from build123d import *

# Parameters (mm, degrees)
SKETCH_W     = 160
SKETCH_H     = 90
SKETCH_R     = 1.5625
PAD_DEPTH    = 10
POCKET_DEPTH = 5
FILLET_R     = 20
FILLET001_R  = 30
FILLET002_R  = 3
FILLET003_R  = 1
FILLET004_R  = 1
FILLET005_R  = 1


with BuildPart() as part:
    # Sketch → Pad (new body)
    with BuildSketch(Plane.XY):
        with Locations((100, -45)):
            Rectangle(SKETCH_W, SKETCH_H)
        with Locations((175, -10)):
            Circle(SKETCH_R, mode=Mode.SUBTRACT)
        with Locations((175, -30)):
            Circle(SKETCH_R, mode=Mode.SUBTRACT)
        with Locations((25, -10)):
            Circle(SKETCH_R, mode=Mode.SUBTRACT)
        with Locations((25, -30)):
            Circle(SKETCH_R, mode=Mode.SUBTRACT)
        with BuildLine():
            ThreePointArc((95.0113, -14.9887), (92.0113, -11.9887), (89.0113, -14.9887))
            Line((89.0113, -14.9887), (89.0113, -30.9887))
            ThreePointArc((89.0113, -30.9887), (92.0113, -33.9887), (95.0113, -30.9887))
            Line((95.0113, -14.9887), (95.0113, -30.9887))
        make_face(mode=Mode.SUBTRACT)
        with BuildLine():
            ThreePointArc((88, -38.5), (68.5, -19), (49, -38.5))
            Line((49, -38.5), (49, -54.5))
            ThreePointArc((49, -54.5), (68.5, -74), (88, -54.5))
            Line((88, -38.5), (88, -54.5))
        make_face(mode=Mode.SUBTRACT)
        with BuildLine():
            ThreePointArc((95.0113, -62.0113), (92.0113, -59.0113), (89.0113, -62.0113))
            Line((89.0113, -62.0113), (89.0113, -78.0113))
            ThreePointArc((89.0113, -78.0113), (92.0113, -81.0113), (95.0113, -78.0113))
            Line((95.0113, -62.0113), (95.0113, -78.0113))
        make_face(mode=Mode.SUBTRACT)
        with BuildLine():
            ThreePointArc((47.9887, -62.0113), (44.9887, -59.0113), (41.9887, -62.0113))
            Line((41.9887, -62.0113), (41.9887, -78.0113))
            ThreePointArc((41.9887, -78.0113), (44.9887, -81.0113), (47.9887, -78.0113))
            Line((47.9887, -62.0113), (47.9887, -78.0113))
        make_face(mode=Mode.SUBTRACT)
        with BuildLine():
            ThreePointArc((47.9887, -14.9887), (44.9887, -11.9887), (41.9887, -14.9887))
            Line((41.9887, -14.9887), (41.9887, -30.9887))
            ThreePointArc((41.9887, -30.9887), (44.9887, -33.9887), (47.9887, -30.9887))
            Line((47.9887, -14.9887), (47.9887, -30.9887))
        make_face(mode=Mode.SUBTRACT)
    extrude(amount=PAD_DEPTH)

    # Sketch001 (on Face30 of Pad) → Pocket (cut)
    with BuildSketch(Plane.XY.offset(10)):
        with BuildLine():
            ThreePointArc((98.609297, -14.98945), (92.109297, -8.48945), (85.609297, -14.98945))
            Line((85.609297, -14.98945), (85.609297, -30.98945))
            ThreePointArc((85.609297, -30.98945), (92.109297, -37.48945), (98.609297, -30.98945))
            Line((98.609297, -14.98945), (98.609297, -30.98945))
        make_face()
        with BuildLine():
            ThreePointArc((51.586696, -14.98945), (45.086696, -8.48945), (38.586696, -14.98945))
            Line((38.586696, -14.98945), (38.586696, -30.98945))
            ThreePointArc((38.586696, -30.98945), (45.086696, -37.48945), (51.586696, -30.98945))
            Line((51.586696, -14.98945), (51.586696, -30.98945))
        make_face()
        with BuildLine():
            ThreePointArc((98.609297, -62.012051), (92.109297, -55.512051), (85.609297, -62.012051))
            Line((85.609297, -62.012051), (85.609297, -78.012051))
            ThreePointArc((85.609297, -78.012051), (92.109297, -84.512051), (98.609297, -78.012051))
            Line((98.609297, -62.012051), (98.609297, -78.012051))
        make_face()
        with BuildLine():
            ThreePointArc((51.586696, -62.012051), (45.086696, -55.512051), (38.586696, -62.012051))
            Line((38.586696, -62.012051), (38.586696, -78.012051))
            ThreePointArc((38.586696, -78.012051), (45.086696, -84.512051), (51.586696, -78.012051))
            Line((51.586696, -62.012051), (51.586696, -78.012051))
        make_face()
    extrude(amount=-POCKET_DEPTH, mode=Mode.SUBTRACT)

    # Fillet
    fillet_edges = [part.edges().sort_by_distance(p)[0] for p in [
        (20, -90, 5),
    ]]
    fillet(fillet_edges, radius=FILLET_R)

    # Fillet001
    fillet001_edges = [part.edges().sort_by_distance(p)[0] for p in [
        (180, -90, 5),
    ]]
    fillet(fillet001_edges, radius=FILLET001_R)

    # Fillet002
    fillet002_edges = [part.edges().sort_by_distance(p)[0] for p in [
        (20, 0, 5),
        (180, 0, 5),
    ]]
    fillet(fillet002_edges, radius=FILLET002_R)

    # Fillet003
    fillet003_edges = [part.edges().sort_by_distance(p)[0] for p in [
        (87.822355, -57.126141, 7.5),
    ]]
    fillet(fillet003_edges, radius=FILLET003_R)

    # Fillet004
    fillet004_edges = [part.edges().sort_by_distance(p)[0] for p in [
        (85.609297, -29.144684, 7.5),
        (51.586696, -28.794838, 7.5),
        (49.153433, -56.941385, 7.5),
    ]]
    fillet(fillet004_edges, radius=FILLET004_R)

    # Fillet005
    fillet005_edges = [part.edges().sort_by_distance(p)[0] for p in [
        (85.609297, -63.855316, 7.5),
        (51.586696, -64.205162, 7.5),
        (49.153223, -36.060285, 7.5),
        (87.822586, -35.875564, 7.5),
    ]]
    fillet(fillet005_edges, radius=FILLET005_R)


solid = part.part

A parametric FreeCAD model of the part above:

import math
import FreeCAD as App
import Part
import Sketcher
from FreeCAD import Vector


def edges_at(feature, points):
    """Names of the edges that pass closest to the given points."""
    edges = feature.Shape.Edges
    near = lambda p: min(range(len(edges)), key=lambda i: edges[i].distToShape(Part.Vertex(*p))[0])
    return sorted({f"Edge{near(p) + 1}" for p in points})


def add_polygon(sketch, points):
    """Adds a closed chain of lines whose ends are joined by coincident constraints."""
    first, n = sketch.GeometryCount, len(points)
    for a, b in zip(points, points[1:] + points[:1]):
        sketch.addGeometry(Part.LineSegment(App.Vector(*a, 0), App.Vector(*b, 0)), False)
    for i in range(n):
        sketch.addConstraint(Sketcher.Constraint("Coincident", first + i, 2, first + (i + 1) % n, 1))

doc = App.newDocument("Part")
params = doc.addObject("Spreadsheet::Sheet", "Params")
for row, (alias, value) in enumerate([
    ("sketch1_radius", "3 mm"),
    ("sketch1_radius2", "19.5 mm"),
    ("sketch1_width", "160 mm"),
    ("sketch1_height", "90 mm"),
    ("sketch1_height2", "16 mm"),
    ("pad1_length", "10 mm"),
    ("sketch2_radius", "6.5 mm"),
    ("sketch2_height", "16 mm"),
    ("pocket1_length", "5 mm"),
    ("fillet_radius", "20 mm"),
    ("fillet2_radius", "30 mm"),
    ("fillet3_radius", "3 mm"),
    ("fillet4_radius", "1 mm"),
    ("fillet5_radius", "1 mm"),
    ("fillet6_radius", "1 mm"),
], start=1):
    params.set(f"A{row}", alias)
    params.set(f"B{row}", "=" + value)
    params.setAlias(f"B{row}", alias)

body = doc.addObject("PartDesign::Body", "Body")

sketch1 = body.newObject("Sketcher::SketchObject", "Sketch")
sketch1.AttachmentSupport = (doc.getObject("XY_Plane"), [""])
sketch1.MapMode = "FlatFace"
add_polygon(sketch1, [(20, 0), (20, -90), (180, -90), (180, 0)])
sketch1.addGeometry(Part.ArcOfCircle(Part.Circle(Vector(45, -62, 0), Vector(0, 0, 1), 3), math.radians(0), math.radians(180)), False)
sketch1.addGeometry(Part.LineSegment(Vector(48, -62, 0), Vector(48, -78, 0)), False)
sketch1.addGeometry(Part.ArcOfCircle(Part.Circle(Vector(45, -78, 0), Vector(0, 0, 1), 3), math.radians(180), math.radians(360)), False)
sketch1.addGeometry(Part.LineSegment(Vector(42, -78, 0), Vector(42, -62, 0)), False)
sketch1.addGeometry(Part.ArcOfCircle(Part.Circle(Vector(92, -62, 0), Vector(0, 0, 1), 3), math.radians(0), math.radians(180)), False)
sketch1.addGeometry(Part.LineSegment(Vector(95, -62, 0), Vector(95, -78, 0)), False)
sketch1.addGeometry(Part.ArcOfCircle(Part.Circle(Vector(92, -78, 0), Vector(0, 0, 1), 3), math.radians(180), math.radians(360)), False)
sketch1.addGeometry(Part.LineSegment(Vector(89, -78, 0), Vector(89, -62, 0)), False)
sketch1.addGeometry(Part.ArcOfCircle(Part.Circle(Vector(68.5, -38.5, 0), Vector(0, 0, 1), 19.5), math.radians(0), math.radians(180)), False)
sketch1.addGeometry(Part.LineSegment(Vector(88, -38.5, 0), Vector(88, -54.5, 0)), False)
sketch1.addGeometry(Part.ArcOfCircle(Part.Circle(Vector(68.5, -54.5, 0), Vector(0, 0, 1), 19.5), math.radians(180), math.radians(360)), False)
sketch1.addGeometry(Part.LineSegment(Vector(49, -54.5, 0), Vector(49, -38.5, 0)), False)
sketch1.addGeometry(Part.Circle(Vector(25, -30, 0), Vector(0, 0, 1), 1.6), False)
sketch1.addGeometry(Part.ArcOfCircle(Part.Circle(Vector(45, -15, 0), Vector(0, 0, 1), 3), math.radians(0), math.radians(180)), False)
sketch1.addGeometry(Part.LineSegment(Vector(48, -15, 0), Vector(48, -31, 0)), False)
sketch1.addGeometry(Part.ArcOfCircle(Part.Circle(Vector(45, -31, 0), Vector(0, 0, 1), 3), math.radians(180), math.radians(360)), False)
sketch1.addGeometry(Part.LineSegment(Vector(42, -31, 0), Vector(42, -15, 0)), False)
sketch1.addGeometry(Part.Circle(Vector(25, -10, 0), Vector(0, 0, 1), 1.6), False)
sketch1.addGeometry(Part.ArcOfCircle(Part.Circle(Vector(92, -15, 0), Vector(0, 0, 1), 3), math.radians(0), math.radians(180)), False)
sketch1.addGeometry(Part.LineSegment(Vector(95, -15, 0), Vector(95, -31, 0)), False)
sketch1.addGeometry(Part.ArcOfCircle(Part.Circle(Vector(92, -31, 0), Vector(0, 0, 1), 3), math.radians(180), math.radians(360)), False)
sketch1.addGeometry(Part.LineSegment(Vector(89, -31, 0), Vector(89, -15, 0)), False)
sketch1.addGeometry(Part.Circle(Vector(175, -30, 0), Vector(0, 0, 1), 1.6), False)
sketch1.addGeometry(Part.Circle(Vector(175, -10, 0), Vector(0, 0, 1), 1.6), False)
sketch1.addConstraint(Sketcher.Constraint("Tangent", 4, 1, 5, 1))
sketch1.addConstraint(Sketcher.Constraint("Tangent", 5, 2, 6, 2))
sketch1.addConstraint(Sketcher.Constraint("Tangent", 6, 1, 7, 1))
sketch1.addConstraint(Sketcher.Constraint("Tangent", 7, 2, 4, 2))
sketch1.addConstraint(Sketcher.Constraint("Tangent", 8, 1, 9, 1))
sketch1.addConstraint(Sketcher.Constraint("Tangent", 9, 2, 10, 2))
sketch1.addConstraint(Sketcher.Constraint("Tangent", 10, 1, 11, 1))
sketch1.addConstraint(Sketcher.Constraint("Tangent", 11, 2, 8, 2))
sketch1.addConstraint(Sketcher.Constraint("Tangent", 12, 1, 13, 1))
sketch1.addConstraint(Sketcher.Constraint("Tangent", 13, 2, 14, 2))
sketch1.addConstraint(Sketcher.Constraint("Tangent", 14, 1, 15, 1))
sketch1.addConstraint(Sketcher.Constraint("Tangent", 15, 2, 12, 2))
sketch1.addConstraint(Sketcher.Constraint("Tangent", 17, 1, 18, 1))
sketch1.addConstraint(Sketcher.Constraint("Tangent", 18, 2, 19, 2))
sketch1.addConstraint(Sketcher.Constraint("Tangent", 19, 1, 20, 1))
sketch1.addConstraint(Sketcher.Constraint("Tangent", 20, 2, 17, 2))
sketch1.addConstraint(Sketcher.Constraint("Tangent", 22, 1, 23, 1))
sketch1.addConstraint(Sketcher.Constraint("Tangent", 23, 2, 24, 2))
sketch1.addConstraint(Sketcher.Constraint("Tangent", 24, 1, 25, 1))
sketch1.addConstraint(Sketcher.Constraint("Tangent", 25, 2, 22, 2))
sketch1.addConstraint(Sketcher.Constraint("Vertical", 0))
sketch1.addConstraint(Sketcher.Constraint("Horizontal", 1))
sketch1.addConstraint(Sketcher.Constraint("Vertical", 2))
sketch1.addConstraint(Sketcher.Constraint("Horizontal", 3))
sketch1.addConstraint(Sketcher.Constraint("Vertical", 5))
sketch1.addConstraint(Sketcher.Constraint("Vertical", 7))
sketch1.addConstraint(Sketcher.Constraint("Vertical", 9))
sketch1.addConstraint(Sketcher.Constraint("Vertical", 11))
sketch1.addConstraint(Sketcher.Constraint("Vertical", 13))
sketch1.addConstraint(Sketcher.Constraint("Vertical", 15))
sketch1.addConstraint(Sketcher.Constraint("Vertical", 18))
sketch1.addConstraint(Sketcher.Constraint("Vertical", 20))
sketch1.addConstraint(Sketcher.Constraint("Vertical", 23))
sketch1.addConstraint(Sketcher.Constraint("Vertical", 25))
sketch1.addConstraint(Sketcher.Constraint("Equal", 6, 8))
sketch1.addConstraint(Sketcher.Constraint("Equal", 10, 17))
sketch1.addConstraint(Sketcher.Constraint("Equal", 16, 21))
sketch1.addConstraint(Sketcher.Constraint("Equal", 19, 22))
sketch1.addConstraint(Sketcher.Constraint("Equal", 21, 26))
sketch1.addConstraint(Sketcher.Constraint("Equal", 26, 27))
sketch1.addConstraint(Sketcher.Constraint("PointOnObject", 2, 2, -1))
sketch1.addConstraint(Sketcher.Constraint("Horizontal", 4, 3, 8, 3))
sketch1.addConstraint(Sketcher.Constraint("Horizontal", 6, 3, 10, 3))
sketch1.addConstraint(Sketcher.Constraint("Horizontal", 17, 3, 22, 3))
sketch1.addConstraint(Sketcher.Constraint("Horizontal", 19, 3, 24, 3))
sketch1.addConstraint(Sketcher.Constraint("Horizontal", 16, 3, 26, 3))
sketch1.addConstraint(Sketcher.Constraint("Horizontal", 21, 3, 27, 3))
sketch1.addConstraint(Sketcher.Constraint("Vertical", 6, 3, 17, 3))
sketch1.addConstraint(Sketcher.Constraint("Vertical", 16, 3, 21, 3))
sketch1.addConstraint(Sketcher.Constraint("Vertical", 10, 3, 22, 3))
sketch1.addConstraint(Sketcher.Constraint("Vertical", 26, 3, 27, 3))
sketch1.addConstraint(Sketcher.Constraint("Equal", 11, 13))
sketch1.addConstraint(Sketcher.Constraint("Equal", 15, 18))
sketch1.addConstraint(Sketcher.Constraint("Radius", 4, 3.0))
sketch1.addConstraint(Sketcher.Constraint("Radius", 12, 19.5))
sketch1.addConstraint(Sketcher.Constraint("DistanceX", 1, 1, 1, 2, 160.0))
sketch1.addConstraint(Sketcher.Constraint("DistanceY", 0, 2, 0, 1, 90.0))
sketch1.addConstraint(Sketcher.Constraint("DistanceY", 5, 2, 5, 1, 16.0))
sketch1.addConstraint(Sketcher.Constraint("Diameter", 16, 3.125))
sketch1.addConstraint(Sketcher.Constraint("DistanceX", -1, 1, 16, 3, 25.0))
sketch1.addConstraint(Sketcher.Constraint("DistanceY", 16, 3, -1, 1, 30.0))
sketch1.addConstraint(Sketcher.Constraint("DistanceY", 21, 3, -1, 1, 10.0))
sketch1.addConstraint(Sketcher.Constraint("DistanceX", -1, 1, 26, 3, 175.0))
sketch1.addConstraint(Sketcher.Constraint("DistanceX", -1, 1, 0, 2, 20.0))
sketch1.addConstraint(Sketcher.Constraint("DistanceX", -1, 1, 12, 1, 88.0))
sketch1.addConstraint(Sketcher.Constraint("DistanceY", 12, 3, -1, 1, 38.5))
sketch1.addConstraint(Sketcher.Constraint("DistanceX", -1, 1, 4, 3, 44.9887))
sketch1.addConstraint(Sketcher.Constraint("DistanceY", 4, 3, -1, 1, 62.0113))
sketch1.addConstraint(Sketcher.Constraint("DistanceX", -1, 1, 8, 3, 92.0113))
sketch1.addConstraint(Sketcher.Constraint("DistanceY", 17, 3, -1, 1, 14.9887))
sketch1.setExpression("Constraints[57]", "Params.sketch1_radius")
sketch1.setExpression("Constraints[58]", "Params.sketch1_radius2")
sketch1.setExpression("Constraints[59]", "Params.sketch1_width")
sketch1.setExpression("Constraints[60]", "Params.sketch1_height")
sketch1.setExpression("Constraints[61]", "Params.sketch1_height2")
pad1 = body.newObject("PartDesign::Pad", "Pad")
pad1.Profile = sketch1
pad1.setExpression("Length", "Params.pad1_length")

sketch2 = body.newObject("Sketcher::SketchObject", "Sketch001")
sketch2.AttachmentSupport = (doc.getObject("XY_Plane"), [""])
sketch2.MapMode = "FlatFace"
sketch2.AttachmentOffset = App.Placement(Vector(0, 0, 10), App.Rotation())
sketch2.addGeometry(Part.ArcOfCircle(Part.Circle(Vector(92, -15, 0), Vector(0, 0, 1), 6), math.radians(0), math.radians(180)), False)
sketch2.addGeometry(Part.LineSegment(Vector(86, -15, 0), Vector(86, -31, 0)), False)
sketch2.addGeometry(Part.ArcOfCircle(Part.Circle(Vector(92, -31, 0), Vector(0, 0, 1), 6), math.radians(180), math.radians(360)), False)
sketch2.addGeometry(Part.LineSegment(Vector(99, -31, 0), Vector(99, -15, 0)), False)
sketch2.addGeometry(Part.ArcOfCircle(Part.Circle(Vector(45, -15, 0), Vector(0, 0, 1), 6), math.radians(0), math.radians(180)), False)
sketch2.addGeometry(Part.LineSegment(Vector(39, -15, 0), Vector(39, -31, 0)), False)
sketch2.addGeometry(Part.ArcOfCircle(Part.Circle(Vector(45, -31, 0), Vector(0, 0, 1), 6), math.radians(180), math.radians(360)), False)
sketch2.addGeometry(Part.LineSegment(Vector(52, -31, 0), Vector(52, -15, 0)), False)
sketch2.addGeometry(Part.ArcOfCircle(Part.Circle(Vector(92, -62, 0), Vector(0, 0, 1), 6), math.radians(0), math.radians(180)), False)
sketch2.addGeometry(Part.LineSegment(Vector(86, -62, 0), Vector(86, -78, 0)), False)
sketch2.addGeometry(Part.ArcOfCircle(Part.Circle(Vector(92, -78, 0), Vector(0, 0, 1), 6), math.radians(180), math.radians(360)), False)
sketch2.addGeometry(Part.LineSegment(Vector(99, -78, 0), Vector(99, -62, 0)), False)
sketch2.addGeometry(Part.ArcOfCircle(Part.Circle(Vector(45, -62, 0), Vector(0, 0, 1), 6), math.radians(0), math.radians(180)), False)
sketch2.addGeometry(Part.LineSegment(Vector(39, -62, 0), Vector(39, -78, 0)), False)
sketch2.addGeometry(Part.ArcOfCircle(Part.Circle(Vector(45, -78, 0), Vector(0, 0, 1), 6), math.radians(180), math.radians(360)), False)
sketch2.addGeometry(Part.LineSegment(Vector(52, -78, 0), Vector(52, -62, 0)), False)
sketch2.addConstraint(Sketcher.Constraint("Tangent", 0, 2, 1, 1))
sketch2.addConstraint(Sketcher.Constraint("Tangent", 1, 2, 2, 1))
sketch2.addConstraint(Sketcher.Constraint("Tangent", 2, 2, 3, 1))
sketch2.addConstraint(Sketcher.Constraint("Tangent", 3, 2, 0, 1))
sketch2.addConstraint(Sketcher.Constraint("Tangent", 4, 2, 5, 1))
sketch2.addConstraint(Sketcher.Constraint("Tangent", 5, 2, 6, 1))
sketch2.addConstraint(Sketcher.Constraint("Tangent", 6, 2, 7, 1))
sketch2.addConstraint(Sketcher.Constraint("Tangent", 7, 2, 4, 1))
sketch2.addConstraint(Sketcher.Constraint("Tangent", 8, 2, 9, 1))
sketch2.addConstraint(Sketcher.Constraint("Tangent", 9, 2, 10, 1))
sketch2.addConstraint(Sketcher.Constraint("Tangent", 10, 2, 11, 1))
sketch2.addConstraint(Sketcher.Constraint("Tangent", 11, 2, 8, 1))
sketch2.addConstraint(Sketcher.Constraint("Tangent", 12, 2, 13, 1))
sketch2.addConstraint(Sketcher.Constraint("Tangent", 13, 2, 14, 1))
sketch2.addConstraint(Sketcher.Constraint("Tangent", 14, 2, 15, 1))
sketch2.addConstraint(Sketcher.Constraint("Tangent", 15, 2, 12, 1))
sketch2.addConstraint(Sketcher.Constraint("Vertical", 1))
sketch2.addConstraint(Sketcher.Constraint("Vertical", 3))
sketch2.addConstraint(Sketcher.Constraint("Vertical", 5))
sketch2.addConstraint(Sketcher.Constraint("Vertical", 7))
sketch2.addConstraint(Sketcher.Constraint("Vertical", 9))
sketch2.addConstraint(Sketcher.Constraint("Vertical", 11))
sketch2.addConstraint(Sketcher.Constraint("Vertical", 13))
sketch2.addConstraint(Sketcher.Constraint("Vertical", 15))
sketch2.addConstraint(Sketcher.Constraint("Equal", 2, 4))
sketch2.addConstraint(Sketcher.Constraint("Equal", 6, 8))
sketch2.addConstraint(Sketcher.Constraint("Equal", 10, 12))
sketch2.addConstraint(Sketcher.Constraint("Horizontal", 0, 3, 4, 3))
sketch2.addConstraint(Sketcher.Constraint("Horizontal", 2, 3, 6, 3))
sketch2.addConstraint(Sketcher.Constraint("Horizontal", 8, 3, 12, 3))
sketch2.addConstraint(Sketcher.Constraint("Horizontal", 10, 3, 14, 3))
sketch2.addConstraint(Sketcher.Constraint("Vertical", 2, 3, 8, 3))
sketch2.addConstraint(Sketcher.Constraint("Vertical", 6, 3, 12, 3))
sketch2.addConstraint(Sketcher.Constraint("Equal", 7, 9))
sketch2.addConstraint(Sketcher.Constraint("Radius", 0, 6.5))
sketch2.addConstraint(Sketcher.Constraint("DistanceY", 1, 2, 1, 1, 16.0))
sketch2.addConstraint(Sketcher.Constraint("DistanceX", 4, 3, 0, 3, 47.022601))
sketch2.addConstraint(Sketcher.Constraint("DistanceY", 8, 3, 2, 3, 31.022601))
sketch2.addConstraint(Sketcher.Constraint("DistanceY", 0, 3, -1, 1, 14.98945))
sketch2.addConstraint(Sketcher.Constraint("DistanceX", -1, 1, 0, 3, 92.109297))
sketch2.setExpression("Constraints[34]", "Params.sketch2_radius")
sketch2.setExpression("Constraints[35]", "Params.sketch2_height")
pocket1 = body.newObject("PartDesign::Pocket", "Pocket")
pocket1.Profile = sketch2
pocket1.setExpression("Length", "Params.pocket1_length")
doc.recompute()

fillet = body.newObject("PartDesign::Fillet", "Fillet")
fillet.Base = (pocket1, edges_at(pocket1, [(20, -90, 5)]))
fillet.setExpression("Radius", "Params.fillet_radius")
doc.recompute()

fillet2 = body.newObject("PartDesign::Fillet", "Fillet001")
fillet2.Base = (fillet, edges_at(fillet, [(180, -90, 5)]))
fillet2.setExpression("Radius", "Params.fillet2_radius")
doc.recompute()

fillet3 = body.newObject("PartDesign::Fillet", "Fillet002")
fillet3.Base = (fillet2, edges_at(fillet2, [(20, 0, 5), (180, 0, 5)]))
fillet3.setExpression("Radius", "Params.fillet3_radius")
doc.recompute()

fillet4 = body.newObject("PartDesign::Fillet", "Fillet003")
fillet4.Base = (fillet3, edges_at(fillet3, [(87.822, -57.126, 7.5)]))
fillet4.setExpression("Radius", "Params.fillet4_radius")
doc.recompute()

fillet5 = body.newObject("PartDesign::Fillet", "Fillet004")
fillet5.Base = (fillet4, edges_at(fillet4, [(85.609, -29.145, 7.5), (51.587, -28.795, 7.5), (49.153, -56.941, 7.5)]))
fillet5.setExpression("Radius", "Params.fillet5_radius")
doc.recompute()

fillet6 = body.newObject("PartDesign::Fillet", "Fillet005")
fillet6.Base = (fillet5, edges_at(fillet5, [
    (85.609, -63.855, 7.5),
    (51.587, -64.205, 7.5),
    (49.153, -36.06, 7.5),
    (87.823, -35.876, 7.5),
]))
fillet6.setExpression("Radius", "Params.fillet6_radius")

doc.recompute()
